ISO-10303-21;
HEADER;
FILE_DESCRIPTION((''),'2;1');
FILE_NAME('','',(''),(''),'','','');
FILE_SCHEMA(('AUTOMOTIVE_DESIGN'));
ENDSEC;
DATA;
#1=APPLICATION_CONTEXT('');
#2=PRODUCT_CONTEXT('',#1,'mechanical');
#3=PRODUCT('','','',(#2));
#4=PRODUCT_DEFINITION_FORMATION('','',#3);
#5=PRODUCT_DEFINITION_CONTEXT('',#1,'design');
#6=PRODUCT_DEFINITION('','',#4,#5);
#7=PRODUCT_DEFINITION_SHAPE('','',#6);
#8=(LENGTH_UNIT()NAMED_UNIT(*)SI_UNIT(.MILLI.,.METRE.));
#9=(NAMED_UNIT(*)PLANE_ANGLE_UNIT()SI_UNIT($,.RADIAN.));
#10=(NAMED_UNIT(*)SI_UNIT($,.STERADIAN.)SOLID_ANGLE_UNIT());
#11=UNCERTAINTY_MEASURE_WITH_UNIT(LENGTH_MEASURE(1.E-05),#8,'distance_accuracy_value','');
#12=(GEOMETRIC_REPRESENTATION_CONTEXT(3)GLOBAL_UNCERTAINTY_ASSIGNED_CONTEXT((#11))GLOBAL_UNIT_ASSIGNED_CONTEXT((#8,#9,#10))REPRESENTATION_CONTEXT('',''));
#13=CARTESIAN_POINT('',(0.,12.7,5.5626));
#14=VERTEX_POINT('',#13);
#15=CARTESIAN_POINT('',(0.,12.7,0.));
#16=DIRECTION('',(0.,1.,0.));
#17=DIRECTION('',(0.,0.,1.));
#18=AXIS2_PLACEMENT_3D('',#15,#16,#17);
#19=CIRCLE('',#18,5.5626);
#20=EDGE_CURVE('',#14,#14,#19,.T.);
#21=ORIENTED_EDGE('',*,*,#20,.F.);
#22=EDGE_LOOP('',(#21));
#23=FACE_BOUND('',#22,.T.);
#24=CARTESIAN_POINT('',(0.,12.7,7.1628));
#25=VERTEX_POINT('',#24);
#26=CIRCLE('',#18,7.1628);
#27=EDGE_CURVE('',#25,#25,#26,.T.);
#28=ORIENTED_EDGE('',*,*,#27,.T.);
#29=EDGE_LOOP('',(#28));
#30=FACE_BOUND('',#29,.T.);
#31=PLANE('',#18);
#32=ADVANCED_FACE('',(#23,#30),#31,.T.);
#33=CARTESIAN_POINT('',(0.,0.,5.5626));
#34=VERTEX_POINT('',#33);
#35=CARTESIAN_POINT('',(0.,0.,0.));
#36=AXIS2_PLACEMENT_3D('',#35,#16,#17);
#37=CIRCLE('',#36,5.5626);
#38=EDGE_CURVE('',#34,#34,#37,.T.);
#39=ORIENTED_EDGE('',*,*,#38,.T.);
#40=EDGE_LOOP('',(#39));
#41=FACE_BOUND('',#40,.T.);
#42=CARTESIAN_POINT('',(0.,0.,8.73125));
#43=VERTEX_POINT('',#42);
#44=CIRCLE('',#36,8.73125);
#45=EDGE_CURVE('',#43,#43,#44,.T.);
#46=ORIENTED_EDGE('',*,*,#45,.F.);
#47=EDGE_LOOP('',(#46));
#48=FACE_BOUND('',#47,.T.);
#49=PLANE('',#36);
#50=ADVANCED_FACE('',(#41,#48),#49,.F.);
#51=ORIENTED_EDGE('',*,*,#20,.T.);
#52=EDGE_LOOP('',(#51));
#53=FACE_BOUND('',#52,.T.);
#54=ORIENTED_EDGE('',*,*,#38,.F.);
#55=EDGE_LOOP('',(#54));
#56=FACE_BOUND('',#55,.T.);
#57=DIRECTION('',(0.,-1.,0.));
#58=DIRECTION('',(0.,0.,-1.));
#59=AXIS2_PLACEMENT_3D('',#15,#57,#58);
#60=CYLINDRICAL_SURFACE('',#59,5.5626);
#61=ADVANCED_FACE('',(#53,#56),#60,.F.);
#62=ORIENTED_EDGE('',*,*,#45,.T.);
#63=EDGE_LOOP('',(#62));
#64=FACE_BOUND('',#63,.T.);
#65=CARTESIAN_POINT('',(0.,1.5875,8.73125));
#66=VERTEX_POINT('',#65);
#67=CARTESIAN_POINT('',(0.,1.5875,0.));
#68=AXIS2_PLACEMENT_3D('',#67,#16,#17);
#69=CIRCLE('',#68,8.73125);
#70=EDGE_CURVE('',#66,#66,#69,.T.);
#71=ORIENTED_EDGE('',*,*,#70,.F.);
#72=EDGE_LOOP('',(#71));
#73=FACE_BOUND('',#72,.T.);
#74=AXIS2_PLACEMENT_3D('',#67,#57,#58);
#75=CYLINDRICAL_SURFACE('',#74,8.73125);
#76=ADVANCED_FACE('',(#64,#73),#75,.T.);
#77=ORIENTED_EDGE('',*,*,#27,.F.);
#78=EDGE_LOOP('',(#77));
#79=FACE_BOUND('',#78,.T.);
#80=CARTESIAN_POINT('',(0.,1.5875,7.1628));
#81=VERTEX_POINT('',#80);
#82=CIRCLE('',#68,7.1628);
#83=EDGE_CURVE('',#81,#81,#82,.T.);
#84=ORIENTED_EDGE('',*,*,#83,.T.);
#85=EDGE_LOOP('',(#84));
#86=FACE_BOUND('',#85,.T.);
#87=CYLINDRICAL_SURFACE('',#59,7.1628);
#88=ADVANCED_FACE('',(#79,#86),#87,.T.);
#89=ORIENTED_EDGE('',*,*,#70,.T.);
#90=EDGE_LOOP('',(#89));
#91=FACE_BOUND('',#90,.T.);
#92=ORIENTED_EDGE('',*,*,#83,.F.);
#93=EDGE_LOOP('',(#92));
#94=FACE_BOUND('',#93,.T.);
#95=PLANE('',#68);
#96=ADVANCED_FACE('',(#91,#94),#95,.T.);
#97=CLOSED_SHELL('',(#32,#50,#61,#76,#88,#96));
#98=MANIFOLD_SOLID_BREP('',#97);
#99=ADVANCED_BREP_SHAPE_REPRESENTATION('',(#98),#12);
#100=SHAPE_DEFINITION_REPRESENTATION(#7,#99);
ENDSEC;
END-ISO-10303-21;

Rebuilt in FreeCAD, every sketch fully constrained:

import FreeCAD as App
import Part
import Sketcher
from FreeCAD import Vector
Q = App.Units.Quantity

doc = App.newDocument("Part")
body = doc.addObject("PartDesign::Body", "Body")

# Sketch on XZ plane
sketch1 = doc.addObject("Sketcher::SketchObject", "Sketch")
body.addObject(sketch1)
sketch1.AttachmentSupport = (doc.XZ_Plane, [""])
sketch1.MapMode = "FlatFace"
sketch1.addGeometry([
    Part.Circle(Vector(0, 0, 0), Vector(0, 0, 1), 7),
    Part.Circle(Vector(0, 0, 0), Vector(0, 0, 1), 6),
], False)
sketch1.addConstraint([
    Sketcher.Constraint("Coincident", 0, 3, -1, 1),
    Sketcher.Constraint("Coincident", 1, 3, -1, 1),
    Sketcher.Constraint("Diameter", 0, Q("0.564 in")),
    Sketcher.Constraint("Diameter", 1, Q("0.438 in")),
])
pad1 = doc.addObject("PartDesign::Pad", "Pad")
body.addObject(pad1)
pad1.Profile = sketch1
pad1.Length = Q("0.5 in")
pad1.Reversed = True

# Sketch on XZ plane
sketch2 = doc.addObject("Sketcher::SketchObject", "Sketch001")
body.addObject(sketch2)
sketch2.AttachmentSupport = (doc.XZ_Plane, [""])
sketch2.MapMode = "FlatFace"
sketch2.addGeometry([
    Part.Circle(Vector(0, 0, 0), Vector(0, 0, 1), 9),
    Part.Circle(Vector(0, 0, 0), Vector(0, 0, 1), 7),
], False)
sketch2.addConstraint([
    Sketcher.Constraint("Coincident", 0, 3, -1, 1),
    Sketcher.Constraint("Coincident", 1, 3, -1, 1),
    Sketcher.Constraint("Diameter", 0, Q("0.6875 in")),
    Sketcher.Constraint("Diameter", 1, Q("0.564 in")),
])
pad2 = doc.addObject("PartDesign::Pad", "Pad001")
body.addObject(pad2)
pad2.Profile = sketch2
pad2.Length = Q("0.0625 in")
pad2.Reversed = True

doc.recompute()
